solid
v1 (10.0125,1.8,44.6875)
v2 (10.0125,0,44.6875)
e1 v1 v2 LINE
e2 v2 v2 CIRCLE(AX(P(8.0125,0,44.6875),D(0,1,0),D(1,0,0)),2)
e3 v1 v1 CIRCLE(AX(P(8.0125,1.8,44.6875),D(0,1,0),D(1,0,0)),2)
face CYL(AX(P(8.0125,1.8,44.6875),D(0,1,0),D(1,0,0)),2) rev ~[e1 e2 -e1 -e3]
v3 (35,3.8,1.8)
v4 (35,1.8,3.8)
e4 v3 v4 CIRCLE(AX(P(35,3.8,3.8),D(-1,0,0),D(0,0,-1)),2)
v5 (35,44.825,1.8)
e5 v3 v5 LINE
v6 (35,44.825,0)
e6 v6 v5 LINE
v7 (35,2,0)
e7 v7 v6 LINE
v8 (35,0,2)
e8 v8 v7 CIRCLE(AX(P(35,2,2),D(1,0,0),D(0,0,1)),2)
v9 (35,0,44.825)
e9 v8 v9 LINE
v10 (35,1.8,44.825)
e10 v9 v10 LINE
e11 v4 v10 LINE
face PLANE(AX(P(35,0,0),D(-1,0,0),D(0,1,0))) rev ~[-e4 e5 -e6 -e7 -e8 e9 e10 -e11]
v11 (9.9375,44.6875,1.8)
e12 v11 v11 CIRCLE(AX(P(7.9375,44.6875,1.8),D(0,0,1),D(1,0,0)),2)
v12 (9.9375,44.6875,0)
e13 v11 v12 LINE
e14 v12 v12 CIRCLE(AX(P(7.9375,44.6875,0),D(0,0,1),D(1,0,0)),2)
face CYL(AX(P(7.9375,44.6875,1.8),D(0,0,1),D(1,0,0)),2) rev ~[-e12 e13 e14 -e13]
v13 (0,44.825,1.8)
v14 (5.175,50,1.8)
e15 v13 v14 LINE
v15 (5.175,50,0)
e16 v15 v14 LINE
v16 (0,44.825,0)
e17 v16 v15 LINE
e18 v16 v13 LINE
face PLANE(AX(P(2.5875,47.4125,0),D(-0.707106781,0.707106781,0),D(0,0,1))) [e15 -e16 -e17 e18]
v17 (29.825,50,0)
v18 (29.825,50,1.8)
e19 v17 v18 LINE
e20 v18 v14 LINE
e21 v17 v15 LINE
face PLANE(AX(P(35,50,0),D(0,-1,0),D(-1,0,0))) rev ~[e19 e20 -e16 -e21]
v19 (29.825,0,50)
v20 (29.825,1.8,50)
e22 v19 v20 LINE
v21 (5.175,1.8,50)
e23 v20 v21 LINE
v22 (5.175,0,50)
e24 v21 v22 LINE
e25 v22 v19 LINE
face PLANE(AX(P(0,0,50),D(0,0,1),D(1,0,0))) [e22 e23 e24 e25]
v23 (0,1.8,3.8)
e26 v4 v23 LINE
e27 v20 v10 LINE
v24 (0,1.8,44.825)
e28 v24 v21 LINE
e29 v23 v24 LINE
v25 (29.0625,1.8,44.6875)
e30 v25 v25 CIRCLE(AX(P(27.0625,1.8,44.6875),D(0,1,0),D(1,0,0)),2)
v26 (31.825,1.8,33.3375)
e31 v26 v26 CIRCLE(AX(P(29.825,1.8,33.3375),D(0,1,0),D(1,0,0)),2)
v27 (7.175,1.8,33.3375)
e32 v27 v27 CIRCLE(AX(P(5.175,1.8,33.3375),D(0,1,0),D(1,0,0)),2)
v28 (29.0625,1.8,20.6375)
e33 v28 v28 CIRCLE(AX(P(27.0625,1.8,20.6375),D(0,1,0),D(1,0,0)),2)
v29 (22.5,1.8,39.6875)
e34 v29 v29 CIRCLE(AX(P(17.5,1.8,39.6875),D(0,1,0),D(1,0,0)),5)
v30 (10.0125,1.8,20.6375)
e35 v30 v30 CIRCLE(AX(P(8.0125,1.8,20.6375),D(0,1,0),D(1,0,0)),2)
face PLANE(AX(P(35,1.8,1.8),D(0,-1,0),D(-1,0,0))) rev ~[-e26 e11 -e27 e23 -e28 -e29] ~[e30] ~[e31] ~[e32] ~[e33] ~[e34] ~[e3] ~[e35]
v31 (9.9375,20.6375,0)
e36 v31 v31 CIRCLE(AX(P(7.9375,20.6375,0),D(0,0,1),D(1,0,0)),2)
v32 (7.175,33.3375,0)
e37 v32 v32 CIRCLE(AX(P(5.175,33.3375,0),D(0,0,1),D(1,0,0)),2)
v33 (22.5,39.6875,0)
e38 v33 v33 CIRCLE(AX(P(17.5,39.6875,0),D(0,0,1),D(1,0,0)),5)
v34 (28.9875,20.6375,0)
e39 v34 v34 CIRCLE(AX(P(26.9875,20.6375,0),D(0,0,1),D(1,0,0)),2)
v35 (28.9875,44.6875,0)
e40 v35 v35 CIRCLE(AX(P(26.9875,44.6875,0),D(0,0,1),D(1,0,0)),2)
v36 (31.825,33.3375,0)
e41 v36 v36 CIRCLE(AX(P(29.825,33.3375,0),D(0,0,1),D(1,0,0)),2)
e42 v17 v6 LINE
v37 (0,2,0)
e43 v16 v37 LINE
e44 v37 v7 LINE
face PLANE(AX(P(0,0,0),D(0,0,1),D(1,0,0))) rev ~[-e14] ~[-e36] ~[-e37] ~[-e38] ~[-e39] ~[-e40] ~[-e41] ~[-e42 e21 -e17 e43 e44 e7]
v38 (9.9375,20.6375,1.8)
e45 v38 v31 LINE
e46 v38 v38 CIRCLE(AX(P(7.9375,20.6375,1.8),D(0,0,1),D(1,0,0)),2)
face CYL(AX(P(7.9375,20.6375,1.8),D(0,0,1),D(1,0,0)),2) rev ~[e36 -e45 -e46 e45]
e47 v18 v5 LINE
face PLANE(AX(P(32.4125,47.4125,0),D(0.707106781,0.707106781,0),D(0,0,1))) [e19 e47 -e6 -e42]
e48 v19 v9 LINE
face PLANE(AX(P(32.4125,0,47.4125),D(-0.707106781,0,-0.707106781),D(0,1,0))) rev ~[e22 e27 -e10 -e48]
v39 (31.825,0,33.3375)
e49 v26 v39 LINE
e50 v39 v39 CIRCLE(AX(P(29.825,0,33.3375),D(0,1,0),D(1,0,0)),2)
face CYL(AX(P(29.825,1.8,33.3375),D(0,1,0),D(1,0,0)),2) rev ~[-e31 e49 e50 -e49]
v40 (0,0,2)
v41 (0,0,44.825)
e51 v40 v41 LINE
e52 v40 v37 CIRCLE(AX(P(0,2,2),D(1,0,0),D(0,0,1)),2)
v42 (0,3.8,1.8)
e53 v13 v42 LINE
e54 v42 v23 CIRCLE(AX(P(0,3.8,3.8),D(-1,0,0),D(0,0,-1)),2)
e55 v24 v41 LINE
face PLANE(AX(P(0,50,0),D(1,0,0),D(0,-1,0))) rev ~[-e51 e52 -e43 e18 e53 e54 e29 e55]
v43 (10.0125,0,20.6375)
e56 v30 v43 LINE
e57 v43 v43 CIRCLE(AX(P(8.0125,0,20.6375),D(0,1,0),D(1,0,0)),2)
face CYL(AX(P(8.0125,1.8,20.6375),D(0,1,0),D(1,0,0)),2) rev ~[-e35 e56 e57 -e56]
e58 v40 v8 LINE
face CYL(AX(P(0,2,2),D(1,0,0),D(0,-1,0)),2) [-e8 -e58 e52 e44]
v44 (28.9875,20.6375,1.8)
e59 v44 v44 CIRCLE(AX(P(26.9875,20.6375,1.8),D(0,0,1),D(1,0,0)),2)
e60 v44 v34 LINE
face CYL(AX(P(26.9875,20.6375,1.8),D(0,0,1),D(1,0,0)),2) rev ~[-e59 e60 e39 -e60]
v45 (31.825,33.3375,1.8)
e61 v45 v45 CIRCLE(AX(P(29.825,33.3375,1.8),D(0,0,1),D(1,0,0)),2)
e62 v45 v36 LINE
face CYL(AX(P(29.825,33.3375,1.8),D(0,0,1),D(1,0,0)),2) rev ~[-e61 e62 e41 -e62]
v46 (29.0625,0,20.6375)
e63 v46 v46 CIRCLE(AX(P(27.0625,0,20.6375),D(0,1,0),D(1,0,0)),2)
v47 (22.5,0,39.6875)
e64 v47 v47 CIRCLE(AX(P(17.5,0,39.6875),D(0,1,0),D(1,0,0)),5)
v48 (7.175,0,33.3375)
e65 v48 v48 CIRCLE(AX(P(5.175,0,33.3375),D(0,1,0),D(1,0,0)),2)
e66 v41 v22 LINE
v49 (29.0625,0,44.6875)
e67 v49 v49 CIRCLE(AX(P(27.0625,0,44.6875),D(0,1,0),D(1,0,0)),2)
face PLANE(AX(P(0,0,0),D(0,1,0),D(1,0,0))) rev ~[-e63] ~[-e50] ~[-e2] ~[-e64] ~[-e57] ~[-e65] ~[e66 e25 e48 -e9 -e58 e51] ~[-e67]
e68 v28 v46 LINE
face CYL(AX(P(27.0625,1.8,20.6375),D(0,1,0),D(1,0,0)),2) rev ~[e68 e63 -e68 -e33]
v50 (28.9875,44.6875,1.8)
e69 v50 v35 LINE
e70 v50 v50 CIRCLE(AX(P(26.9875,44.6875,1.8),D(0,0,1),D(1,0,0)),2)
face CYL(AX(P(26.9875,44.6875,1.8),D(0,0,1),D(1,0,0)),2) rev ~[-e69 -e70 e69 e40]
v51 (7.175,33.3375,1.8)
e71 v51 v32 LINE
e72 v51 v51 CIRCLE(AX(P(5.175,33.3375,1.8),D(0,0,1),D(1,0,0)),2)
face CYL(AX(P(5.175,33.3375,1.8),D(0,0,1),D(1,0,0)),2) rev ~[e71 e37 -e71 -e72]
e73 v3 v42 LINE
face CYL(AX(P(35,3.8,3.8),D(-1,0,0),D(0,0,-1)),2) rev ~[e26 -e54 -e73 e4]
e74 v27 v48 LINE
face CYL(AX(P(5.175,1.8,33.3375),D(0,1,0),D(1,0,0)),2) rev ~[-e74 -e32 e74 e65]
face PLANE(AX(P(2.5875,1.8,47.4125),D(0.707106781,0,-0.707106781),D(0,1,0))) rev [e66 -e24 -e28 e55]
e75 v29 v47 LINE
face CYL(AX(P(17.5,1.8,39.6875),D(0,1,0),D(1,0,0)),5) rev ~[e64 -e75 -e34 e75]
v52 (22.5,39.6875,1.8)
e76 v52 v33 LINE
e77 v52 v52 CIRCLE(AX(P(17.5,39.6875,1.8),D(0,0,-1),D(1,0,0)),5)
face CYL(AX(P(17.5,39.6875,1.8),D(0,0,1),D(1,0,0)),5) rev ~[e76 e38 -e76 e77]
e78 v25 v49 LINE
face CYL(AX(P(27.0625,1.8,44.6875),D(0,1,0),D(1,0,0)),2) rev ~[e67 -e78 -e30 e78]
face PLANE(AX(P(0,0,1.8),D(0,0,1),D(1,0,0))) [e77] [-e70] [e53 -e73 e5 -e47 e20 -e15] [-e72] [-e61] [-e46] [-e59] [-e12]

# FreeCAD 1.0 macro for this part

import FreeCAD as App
import Part
import Sketcher

V = App.Vector


def edges_at(feature, points):
    """Names of the edges that pass closest to the given points."""
    edges = feature.Shape.Edges
    near = lambda p: min(range(len(edges)), key=lambda i: edges[i].distToShape(Part.Vertex(*p))[0])
    return sorted({f"Edge{near(p) + 1}" for p in points})

doc = App.newDocument("Part")
body = doc.addObject("PartDesign::Body", "Body")

sketch1 = body.newObject("Sketcher::SketchObject", "Sketch")
sketch1.AttachmentSupport = (doc.getObject("XY_Plane"), [""])
sketch1.MapMode = "FlatFace"
sketch1.addGeometry([
    Part.LineSegment(V(0, 50, 0), V(0, 0, 0)),
    Part.LineSegment(V(0, 0, 0), V(35, 0, 0)),
    Part.LineSegment(V(35, 0, 0), V(35, 50, 0)),
    Part.LineSegment(V(35, 50, 0), V(0, 50, 0)),
], False)
sketch1.addConstraint([
    Sketcher.Constraint("Coincident", 0, 2, 1, 1),
    Sketcher.Constraint("Coincident", 1, 2, 2, 1),
    Sketcher.Constraint("Coincident", 2, 2, 3, 1),
    Sketcher.Constraint("Coincident", 3, 2, 0, 1),
    Sketcher.Constraint("Vertical", 0),
    Sketcher.Constraint("Horizontal", 1),
    Sketcher.Constraint("Vertical", 2),
    Sketcher.Constraint("Horizontal", 3),
    Sketcher.Constraint("Coincident", 0, 2, -1, 1),
    Sketcher.Constraint("DistanceX", 1, 1, 1, 2, 35.0),
    Sketcher.Constraint("DistanceY", 0, 2, 0, 1, 50.0),
])
pad1 = body.newObject("PartDesign::Pad", "Pad")
pad1.Profile = sketch1
pad1.Length = 1.8

sketch2 = body.newObject("Sketcher::SketchObject", "Sketch001")
sketch2.AttachmentSupport = (doc.getObject("XY_Plane"), [""])
sketch2.MapMode = "FlatFace"
sketch2.AttachmentOffset = App.Placement(V(0, 0, 1.8), App.Rotation())
sketch2.addGeometry([
    Part.LineSegment(V(0, 1.8, 0), V(0, 0, 0)),
    Part.LineSegment(V(0, 0, 0), V(35, 0, 0)),
    Part.LineSegment(V(35, 0, 0), V(35, 1.8, 0)),
    Part.LineSegment(V(35, 1.8, 0), V(0, 1.8, 0)),
], False)
sketch2.addConstraint([
    Sketcher.Constraint("Coincident", 0, 2, 1, 1),
    Sketcher.Constraint("Coincident", 1, 2, 2, 1),
    Sketcher.Constraint("Coincident", 2, 2, 3, 1),
    Sketcher.Constraint("Coincident", 3, 2, 0, 1),
    Sketcher.Constraint("Vertical", 0),
    Sketcher.Constraint("Horizontal", 1),
    Sketcher.Constraint("Vertical", 2),
    Sketcher.Constraint("Horizontal", 3),
    Sketcher.Constraint("Coincident", 0, 2, -1, 1),
    Sketcher.Constraint("DistanceX", 1, 1, 1, 2, 35.0),
    Sketcher.Constraint("DistanceY", 0, 2, 0, 1, 1.8),
])
pad2 = body.newObject("PartDesign::Pad", "Pad001")
pad2.Profile = sketch2
pad2.Length = 48.2
doc.recompute()

fillet = body.newObject("PartDesign::Fillet", "Fillet")
fillet.Base = (pad2, edges_at(pad2, [(17.5, 1.8, 1.8), (17.5, 0, 0)]))
fillet.Radius = 2
doc.recompute()

chamfer = body.newObject("PartDesign::Chamfer", "Chamfer")
chamfer.Base = (fillet, edges_at(fillet, [
    (0, 50, 0.9),
    (0, 0.9, 50),
    (35, 0.9, 50),
    (35, 50, 0.9),
]))
chamfer.Size = 5.175

sketch3 = body.newObject("Sketcher::SketchObject", "Sketch002")
sketch3.AttachmentSupport = (doc.getObject("XY_Plane"), [""])
sketch3.MapMode = "FlatFace"
sketch3.AttachmentOffset = App.Placement(V(0, 0, 1.8), App.Rotation())
sketch3.addGeometry([
    Part.Circle(V(17.5, 39.7, 0), V(0, 0, 1), 5),
    Part.Circle(V(7.9, 44.7, 0), V(0, 0, 1), 2),
    Part.Circle(V(27, 44.7, 0), V(0, 0, 1), 2),
    Part.Circle(V(5.2, 33.3, 0), V(0, 0, 1), 2),
    Part.Circle(V(29.8, 33.3, 0), V(0, 0, 1), 2),
    Part.Circle(V(7.9, 20.6, 0), V(0, 0, 1), 2),
    Part.Circle(V(27, 20.6, 0), V(0, 0, 1), 2),
], False)
sketch3.addConstraint([
    Sketcher.Constraint("Equal", 1, 2),
    Sketcher.Constraint("Equal", 2, 3),
    Sketcher.Constraint("Equal", 3, 4),
    Sketcher.Constraint("Equal", 4, 5),
    Sketcher.Constraint("Equal", 5, 6),
    Sketcher.Constraint("Horizontal", 1, 3, 2, 3),
    Sketcher.Constraint("Horizontal", 3, 3, 4, 3),
    Sketcher.Constraint("Horizontal", 5, 3, 6, 3),
    Sketcher.Constraint("Vertical", 1, 3, 5, 3),
    Sketcher.Constraint("Vertical", 2, 3, 6, 3),
    Sketcher.Constraint("Diameter", 0, 10.0),
    Sketcher.Constraint("Diameter", 1, 4.0),
    Sketcher.Constraint("DistanceY", 0, 3, 1, 3, 5.0),
    Sketcher.Constraint("DistanceX", -1, 1, 0, 3, 17.5),
    Sketcher.Constraint("DistanceY", 5, 3, 3, 3, 12.7),
    Sketcher.Constraint("DistanceX", 1, 3, 2, 3, 19.05),
    Sketcher.Constraint("DistanceY", 3, 3, 1, 3, 11.35),
    Sketcher.Constraint("DistanceX", 3, 3, 4, 3, 24.65),
    Sketcher.Constraint("DistanceX", -1, 1, 3, 3, 5.175),
    Sketcher.Constraint("DistanceY", -1, 1, 0, 3, 39.6875),
    Sketcher.Constraint("DistanceX", -1, 1, 1, 3, 7.9375),
])
pocket1 = body.newObject("PartDesign::Pocket", "Pocket")
pocket1.Profile = sketch3
pocket1.Length = 48.2

sketch4 = body.newObject("Sketcher::SketchObject", "Sketch003")
sketch4.AttachmentSupport = (doc.getObject("XZ_Plane"), [""])
sketch4.MapMode = "FlatFace"
sketch4.AttachmentOffset = App.Placement(V(0, 0, -1.8), App.Rotation())
sketch4.addGeometry([
    Part.Circle(V(17.5, 39.7, 0), V(0, 0, 1), 5),
    Part.Circle(V(27.1, 44.7, 0), V(0, 0, 1), 2),
    Part.Circle(V(8, 44.7, 0), V(0, 0, 1), 2),
    Part.Circle(V(29.8, 33.3, 0), V(0, 0, 1), 2),
    Part.Circle(V(5.2, 33.3, 0), V(0, 0, 1), 2),
    Part.Circle(V(27.1, 20.6, 0), V(0, 0, 1), 2),
    Part.Circle(V(8, 20.6, 0), V(0, 0, 1), 2),
], False)
sketch4.addConstraint([
    Sketcher.Constraint("Equal", 1, 2),
    Sketcher.Constraint("Equal", 2, 3),
    Sketcher.Constraint("Equal", 3, 4),
    Sketcher.Constraint("Equal", 4, 5),
    Sketcher.Constraint("Equal", 5, 6),
    Sketcher.Constraint("Horizontal", 1, 3, 2, 3),
    Sketcher.Constraint("Horizontal", 3, 3, 4, 3),
    Sketcher.Constraint("Horizontal", 5, 3, 6, 3),
    Sketcher.Constraint("Vertical", 1, 3, 5, 3),
    Sketcher.Constraint("Vertical", 2, 3, 6, 3),
    Sketcher.Constraint("Diameter", 0, 10.0),
    Sketcher.Constraint("Diameter", 1, 4.0),
    Sketcher.Constraint("DistanceY", 0, 3, 1, 3, 5.0),
    Sketcher.Constraint("DistanceX", -1, 1, 0, 3, 17.5),
    Sketcher.Constraint("DistanceY", 5, 3, 3, 3, 12.7),
    Sketcher.Constraint("DistanceX", 2, 3, 1, 3, 19.05),
    Sketcher.Constraint("DistanceY", 3, 3, 1, 3, 11.35),
    Sketcher.Constraint("DistanceX", 4, 3, 3, 3, 24.65),
    Sketcher.Constraint("DistanceX", -1, 1, 3, 3, 29.825),
    Sketcher.Constraint("DistanceY", -1, 1, 0, 3, 39.6875),
    Sketcher.Constraint("DistanceX", -1, 1, 1, 3, 27.0625),
])
pocket2 = body.newObject("PartDesign::Pocket", "Pocket001")
pocket2.Profile = sketch4
pocket2.Length = 48.2
pocket2.Reversed = True

doc.recompute()
